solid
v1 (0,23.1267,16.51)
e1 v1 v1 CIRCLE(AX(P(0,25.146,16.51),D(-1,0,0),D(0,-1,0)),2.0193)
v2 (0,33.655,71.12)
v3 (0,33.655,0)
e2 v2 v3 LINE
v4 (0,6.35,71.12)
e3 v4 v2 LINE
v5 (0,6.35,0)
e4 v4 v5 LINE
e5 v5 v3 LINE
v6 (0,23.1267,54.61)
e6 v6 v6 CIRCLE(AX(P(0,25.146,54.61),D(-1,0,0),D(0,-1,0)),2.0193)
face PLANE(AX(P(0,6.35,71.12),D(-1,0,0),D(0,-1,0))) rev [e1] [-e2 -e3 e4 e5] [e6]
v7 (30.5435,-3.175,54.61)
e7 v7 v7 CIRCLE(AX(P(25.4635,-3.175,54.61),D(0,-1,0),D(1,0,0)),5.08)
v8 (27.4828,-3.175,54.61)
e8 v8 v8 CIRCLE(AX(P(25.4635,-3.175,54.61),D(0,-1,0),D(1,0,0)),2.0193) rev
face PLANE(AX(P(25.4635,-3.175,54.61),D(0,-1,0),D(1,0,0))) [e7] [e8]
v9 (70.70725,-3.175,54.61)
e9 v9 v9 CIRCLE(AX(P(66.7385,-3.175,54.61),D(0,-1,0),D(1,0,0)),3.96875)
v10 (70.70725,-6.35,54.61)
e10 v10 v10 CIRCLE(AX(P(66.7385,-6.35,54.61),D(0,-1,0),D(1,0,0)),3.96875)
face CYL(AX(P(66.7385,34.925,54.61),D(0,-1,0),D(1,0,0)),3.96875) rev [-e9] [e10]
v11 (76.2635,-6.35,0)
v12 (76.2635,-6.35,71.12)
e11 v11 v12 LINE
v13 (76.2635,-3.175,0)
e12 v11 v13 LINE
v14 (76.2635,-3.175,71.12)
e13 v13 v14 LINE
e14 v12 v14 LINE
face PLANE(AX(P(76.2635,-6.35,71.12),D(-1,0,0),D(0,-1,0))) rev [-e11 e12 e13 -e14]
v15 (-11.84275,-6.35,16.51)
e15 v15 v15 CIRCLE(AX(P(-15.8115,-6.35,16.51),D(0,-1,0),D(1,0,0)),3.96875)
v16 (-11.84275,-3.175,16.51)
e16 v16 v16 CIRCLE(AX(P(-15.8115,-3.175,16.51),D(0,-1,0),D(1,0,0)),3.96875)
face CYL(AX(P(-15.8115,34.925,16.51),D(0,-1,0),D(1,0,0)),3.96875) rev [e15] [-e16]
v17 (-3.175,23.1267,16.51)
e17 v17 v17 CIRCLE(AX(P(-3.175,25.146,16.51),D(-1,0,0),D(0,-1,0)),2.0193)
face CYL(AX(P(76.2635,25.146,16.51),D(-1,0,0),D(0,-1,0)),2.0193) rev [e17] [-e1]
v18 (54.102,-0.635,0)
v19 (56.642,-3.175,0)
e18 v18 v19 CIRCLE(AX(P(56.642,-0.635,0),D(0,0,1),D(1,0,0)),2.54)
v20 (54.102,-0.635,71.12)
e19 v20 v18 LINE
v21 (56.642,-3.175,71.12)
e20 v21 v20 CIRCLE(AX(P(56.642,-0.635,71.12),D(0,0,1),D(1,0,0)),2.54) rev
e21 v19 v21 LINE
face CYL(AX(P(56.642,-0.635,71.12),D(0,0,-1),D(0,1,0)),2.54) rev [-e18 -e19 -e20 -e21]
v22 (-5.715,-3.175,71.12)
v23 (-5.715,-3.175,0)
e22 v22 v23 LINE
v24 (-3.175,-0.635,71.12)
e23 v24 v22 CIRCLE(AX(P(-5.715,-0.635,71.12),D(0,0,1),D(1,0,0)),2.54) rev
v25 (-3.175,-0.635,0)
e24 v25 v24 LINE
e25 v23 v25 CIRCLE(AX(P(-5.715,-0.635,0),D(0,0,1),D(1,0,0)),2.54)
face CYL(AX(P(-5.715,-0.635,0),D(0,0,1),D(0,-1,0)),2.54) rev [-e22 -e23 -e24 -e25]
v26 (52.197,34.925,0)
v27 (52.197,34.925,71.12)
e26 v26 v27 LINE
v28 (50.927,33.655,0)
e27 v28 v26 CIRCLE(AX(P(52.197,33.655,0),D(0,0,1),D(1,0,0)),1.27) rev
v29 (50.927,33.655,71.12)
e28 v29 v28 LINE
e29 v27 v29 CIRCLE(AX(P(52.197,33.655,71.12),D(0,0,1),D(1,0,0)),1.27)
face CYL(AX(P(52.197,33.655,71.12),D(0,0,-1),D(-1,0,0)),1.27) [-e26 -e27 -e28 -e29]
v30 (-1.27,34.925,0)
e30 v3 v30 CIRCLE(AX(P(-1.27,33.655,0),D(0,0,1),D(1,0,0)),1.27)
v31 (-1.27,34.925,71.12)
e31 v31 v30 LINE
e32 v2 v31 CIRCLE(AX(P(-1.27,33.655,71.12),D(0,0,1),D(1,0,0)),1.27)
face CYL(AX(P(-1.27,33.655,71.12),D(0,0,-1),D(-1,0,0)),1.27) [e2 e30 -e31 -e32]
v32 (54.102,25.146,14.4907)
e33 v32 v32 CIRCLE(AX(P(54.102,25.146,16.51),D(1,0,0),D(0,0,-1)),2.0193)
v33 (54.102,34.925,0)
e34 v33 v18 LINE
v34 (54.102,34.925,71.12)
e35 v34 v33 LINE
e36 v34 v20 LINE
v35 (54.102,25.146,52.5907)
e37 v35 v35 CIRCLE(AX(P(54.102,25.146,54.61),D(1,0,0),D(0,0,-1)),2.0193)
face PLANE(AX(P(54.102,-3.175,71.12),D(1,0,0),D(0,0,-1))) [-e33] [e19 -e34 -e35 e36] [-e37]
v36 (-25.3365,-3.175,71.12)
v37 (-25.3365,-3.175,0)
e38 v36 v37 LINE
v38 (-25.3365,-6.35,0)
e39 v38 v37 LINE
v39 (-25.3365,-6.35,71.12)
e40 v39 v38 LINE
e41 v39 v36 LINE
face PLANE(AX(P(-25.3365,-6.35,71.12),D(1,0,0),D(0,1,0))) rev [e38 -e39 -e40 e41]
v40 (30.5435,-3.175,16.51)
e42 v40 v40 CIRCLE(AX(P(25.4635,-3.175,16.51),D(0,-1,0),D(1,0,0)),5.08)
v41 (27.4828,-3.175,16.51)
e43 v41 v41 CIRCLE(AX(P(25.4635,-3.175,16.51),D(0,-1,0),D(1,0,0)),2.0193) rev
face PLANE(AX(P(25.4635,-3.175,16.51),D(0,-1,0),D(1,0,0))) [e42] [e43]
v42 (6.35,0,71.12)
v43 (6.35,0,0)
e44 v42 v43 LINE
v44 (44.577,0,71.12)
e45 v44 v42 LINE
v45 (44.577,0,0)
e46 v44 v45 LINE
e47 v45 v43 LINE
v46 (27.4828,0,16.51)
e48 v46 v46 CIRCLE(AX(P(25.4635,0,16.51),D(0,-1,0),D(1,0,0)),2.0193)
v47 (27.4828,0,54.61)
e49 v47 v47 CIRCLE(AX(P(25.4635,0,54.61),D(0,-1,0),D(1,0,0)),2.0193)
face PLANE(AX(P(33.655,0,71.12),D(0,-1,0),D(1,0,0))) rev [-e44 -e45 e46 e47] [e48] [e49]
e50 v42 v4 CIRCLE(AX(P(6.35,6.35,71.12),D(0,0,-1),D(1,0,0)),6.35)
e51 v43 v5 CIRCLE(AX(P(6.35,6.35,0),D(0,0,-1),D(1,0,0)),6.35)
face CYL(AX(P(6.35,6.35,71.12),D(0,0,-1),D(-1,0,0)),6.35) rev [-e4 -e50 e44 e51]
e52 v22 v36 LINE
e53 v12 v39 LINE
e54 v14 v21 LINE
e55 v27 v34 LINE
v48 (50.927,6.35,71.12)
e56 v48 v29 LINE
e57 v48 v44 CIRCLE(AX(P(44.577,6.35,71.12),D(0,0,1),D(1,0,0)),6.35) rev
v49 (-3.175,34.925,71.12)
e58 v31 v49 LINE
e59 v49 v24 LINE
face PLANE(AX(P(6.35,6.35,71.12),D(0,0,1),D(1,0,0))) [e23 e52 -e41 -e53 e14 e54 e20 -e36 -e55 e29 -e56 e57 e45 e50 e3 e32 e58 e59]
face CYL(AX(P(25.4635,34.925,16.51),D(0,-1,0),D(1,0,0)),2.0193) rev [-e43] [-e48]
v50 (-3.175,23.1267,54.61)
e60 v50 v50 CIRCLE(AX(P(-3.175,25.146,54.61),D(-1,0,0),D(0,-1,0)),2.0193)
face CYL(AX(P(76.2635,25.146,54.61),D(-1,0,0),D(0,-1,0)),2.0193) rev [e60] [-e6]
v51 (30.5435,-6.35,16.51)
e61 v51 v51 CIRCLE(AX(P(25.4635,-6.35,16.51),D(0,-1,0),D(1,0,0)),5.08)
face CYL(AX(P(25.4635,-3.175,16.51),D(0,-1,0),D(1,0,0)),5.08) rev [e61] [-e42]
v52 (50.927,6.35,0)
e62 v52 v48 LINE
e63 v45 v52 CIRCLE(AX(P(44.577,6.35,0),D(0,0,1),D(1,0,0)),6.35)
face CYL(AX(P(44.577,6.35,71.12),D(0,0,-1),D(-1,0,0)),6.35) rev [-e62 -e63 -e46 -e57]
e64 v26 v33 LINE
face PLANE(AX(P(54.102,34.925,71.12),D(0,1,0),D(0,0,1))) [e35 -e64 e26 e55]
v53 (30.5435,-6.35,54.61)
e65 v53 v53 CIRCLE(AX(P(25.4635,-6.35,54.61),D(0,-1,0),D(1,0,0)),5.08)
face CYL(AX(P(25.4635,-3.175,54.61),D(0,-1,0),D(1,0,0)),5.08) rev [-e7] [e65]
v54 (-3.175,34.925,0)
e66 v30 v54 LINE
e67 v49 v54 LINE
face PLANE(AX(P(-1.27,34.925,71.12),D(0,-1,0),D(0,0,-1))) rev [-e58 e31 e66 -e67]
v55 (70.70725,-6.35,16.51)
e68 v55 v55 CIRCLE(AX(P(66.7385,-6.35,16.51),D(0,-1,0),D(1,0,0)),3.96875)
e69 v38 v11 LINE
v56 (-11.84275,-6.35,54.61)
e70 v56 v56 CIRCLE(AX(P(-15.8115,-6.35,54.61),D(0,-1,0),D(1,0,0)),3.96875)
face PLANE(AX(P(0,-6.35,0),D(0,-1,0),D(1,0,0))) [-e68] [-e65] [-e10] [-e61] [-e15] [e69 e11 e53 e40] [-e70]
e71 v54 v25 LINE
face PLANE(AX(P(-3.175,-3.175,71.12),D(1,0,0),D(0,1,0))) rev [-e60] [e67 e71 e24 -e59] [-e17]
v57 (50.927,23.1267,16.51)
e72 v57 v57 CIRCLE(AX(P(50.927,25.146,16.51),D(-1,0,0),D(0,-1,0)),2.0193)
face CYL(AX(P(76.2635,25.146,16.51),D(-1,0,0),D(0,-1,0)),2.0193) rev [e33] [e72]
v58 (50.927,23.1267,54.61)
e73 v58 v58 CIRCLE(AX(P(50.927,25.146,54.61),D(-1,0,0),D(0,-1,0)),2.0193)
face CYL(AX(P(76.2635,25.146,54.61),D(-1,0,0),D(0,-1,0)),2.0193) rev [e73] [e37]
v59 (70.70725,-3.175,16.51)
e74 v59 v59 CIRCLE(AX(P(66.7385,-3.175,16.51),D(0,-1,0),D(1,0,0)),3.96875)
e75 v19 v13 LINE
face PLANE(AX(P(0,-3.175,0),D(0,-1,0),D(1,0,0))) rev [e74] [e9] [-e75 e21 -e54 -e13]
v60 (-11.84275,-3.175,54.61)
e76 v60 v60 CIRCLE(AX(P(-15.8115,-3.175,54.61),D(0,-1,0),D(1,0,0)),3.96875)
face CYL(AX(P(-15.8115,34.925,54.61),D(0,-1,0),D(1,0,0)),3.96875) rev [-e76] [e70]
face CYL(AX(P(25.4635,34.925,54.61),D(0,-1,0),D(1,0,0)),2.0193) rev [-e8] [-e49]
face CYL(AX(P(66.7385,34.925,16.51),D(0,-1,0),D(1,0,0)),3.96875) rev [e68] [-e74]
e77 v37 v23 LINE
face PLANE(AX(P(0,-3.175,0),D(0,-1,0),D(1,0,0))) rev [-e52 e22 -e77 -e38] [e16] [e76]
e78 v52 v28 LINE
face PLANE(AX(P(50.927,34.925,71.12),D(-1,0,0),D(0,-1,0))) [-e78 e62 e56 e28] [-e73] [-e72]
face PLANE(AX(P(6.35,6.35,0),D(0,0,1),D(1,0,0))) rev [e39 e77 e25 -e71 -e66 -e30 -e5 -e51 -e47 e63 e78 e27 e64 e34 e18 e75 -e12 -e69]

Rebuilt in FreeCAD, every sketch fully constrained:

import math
import FreeCAD as App
import Part
import Sketcher
from FreeCAD import Vector
Q = App.Units.Quantity


def edges_at(feature, points):
    """Names of the edges that pass closest to the given points."""
    edges = feature.Shape.Edges
    near = lambda p: min(range(len(edges)), key=lambda i: edges[i].distToShape(Part.Vertex(*p))[0])
    return sorted({f"Edge{near(p) + 1}" for p in points})

doc = App.newDocument("Part")
params = doc.addObject("Spreadsheet::Sheet", "Params")
for row, (alias, value) in enumerate([
    ("sketch1_radius", "0.05 in"),
    ("sketch1_radius2", "0.25 in"),
    ("sketch1_width", "1.5 in"),
    ("sketch1_width2", "0.075 in"),
    ("pad1_length", "2.8 in"),
    ("sketch2_height", "0.125 in"),
    ("sketch3_height", "1.5 in"),
    ("sketch3_width", "0.125 in"),
    ("pad2_length", "2.8 in"),
    ("fillet_radius", "0.25 in"),
    ("fillet2_radius", "0.05 in"),
    ("sketch4_width", "4 in"),
    ("sketch4_height", "2.8 in"),
    ("pad3_length", "0.125 in"),
    ("sketch5_diameter", "0.159 in"),
    ("sketch6_diameter", "0.159 in"),
    ("sketch7_diameter", "0.3125 in"),
    ("fillet3_radius", "0.1 in"),
    ("sketch8_diameter", "0.4 in"),
    ("pocket5_length", "0.125 in"),
], start=1):
    params.set(f"A{row}", alias)
    params.set(f"B{row}", "=" + value)
    params.setAlias(f"B{row}", alias)

body = doc.addObject("PartDesign::Body", "Body")

sketch1 = body.newObject("Sketcher::SketchObject", "Sketch")
sketch1.AttachmentSupport = (doc.getObject("XY_Plane"), [""])
sketch1.MapMode = "FlatFace"
sketch1.addGeometry([
    Part.LineSegment(Vector(0, 6.3, 0), Vector(0, 33.7, 0)),
    Part.ArcOfCircle(Part.Circle(Vector(-1.3, 33.7, 0), Vector(0, 0, 1), 1.3), math.radians(0), math.radians(90)),
    Part.LineSegment(Vector(-1.3, 34.9, 0), Vector(-3.2, 34.9, 0)),
    Part.LineSegment(Vector(-3.2, 34.9, 0), Vector(-3.2, -3.2, 0)),
    Part.LineSegment(Vector(-3.2, -3.2, 0), Vector(34.9, -3.2, 0)),
    Part.LineSegment(Vector(34.9, -3.2, 0), Vector(34.9, -1.3, 0)),
    Part.ArcOfCircle(Part.Circle(Vector(33.7, -1.3, 0), Vector(0, 0, 1), 1.3), math.radians(0), math.radians(90)),
    Part.LineSegment(Vector(33.7, 0, 0), Vector(6.3, 0, 0)),
    Part.ArcOfCircle(Part.Circle(Vector(6.3, 6.3, 0), Vector(0, 0, 1), 6.3), math.radians(180), math.radians(270)),
], False)
sketch1.addConstraint([
    Sketcher.Constraint("Tangent", 0, 2, 1, 1),
    Sketcher.Constraint("Tangent", 1, 2, 2, 1),
    Sketcher.Constraint("Coincident", 2, 2, 3, 1),
    Sketcher.Constraint("Coincident", 3, 2, 4, 1),
    Sketcher.Constraint("Coincident", 4, 2, 5, 1),
    Sketcher.Constraint("Tangent", 5, 2, 6, 1),
    Sketcher.Constraint("Tangent", 6, 2, 7, 1),
    Sketcher.Constraint("Tangent", 7, 2, 8, 2),
    Sketcher.Constraint("Tangent", 8, 1, 0, 1),
    Sketcher.Constraint("Vertical", 0),
    Sketcher.Constraint("Horizontal", 2),
    Sketcher.Constraint("Vertical", 3),
    Sketcher.Constraint("Horizontal", 4),
    Sketcher.Constraint("Vertical", 5),
    Sketcher.Constraint("Horizontal", 7),
    Sketcher.Constraint("Equal", 1, 6),
    Sketcher.Constraint("PointOnObject", 0, 2, -2),
    Sketcher.Constraint("PointOnObject", 6, 2, -1),
    Sketcher.Constraint("Equal", 7, 0),
    Sketcher.Constraint("Equal", 4, 3),
    Sketcher.Constraint("Radius", 1, Q("0.05 in")),
    Sketcher.Constraint("Radius", 8, Q("0.25 in")),
    Sketcher.Constraint("DistanceX", 4, 1, 4, 2, Q("1.5 in")),
    Sketcher.Constraint("DistanceX", 2, 2, 2, 1, Q("0.075 in")),
])
sketch1.setExpression("Constraints[20]", "Params.sketch1_radius")
sketch1.setExpression("Constraints[21]", "Params.sketch1_radius2")
sketch1.setExpression("Constraints[22]", "Params.sketch1_width")
sketch1.setExpression("Constraints[23]", "Params.sketch1_width2")
pad1 = body.newObject("PartDesign::Pad", "Pad")
pad1.Profile = sketch1
pad1.setExpression("Length", "Params.pad1_length")

sketch2 = body.newObject("Sketcher::SketchObject", "Sketch001")
sketch2.AttachmentSupport = (doc.getObject("XY_Plane"), [""])
sketch2.MapMode = "FlatFace"
sketch2.addGeometry([
    Part.LineSegment(Vector(34.9, 0, 0), Vector(34.9, -3.2, 0)),
    Part.LineSegment(Vector(34.9, -3.2, 0), Vector(25.5, -3.2, 0)),
    Part.LineSegment(Vector(25.5, -3.2, 0), Vector(25.5, 0, 0)),
    Part.LineSegment(Vector(25.5, 0, 0), Vector(34.9, 0, 0)),
], False)
sketch2.addConstraint([
    Sketcher.Constraint("Coincident", 0, 2, 1, 1),
    Sketcher.Constraint("Coincident", 1, 2, 2, 1),
    Sketcher.Constraint("Coincident", 2, 2, 3, 1),
    Sketcher.Constraint("Coincident", 3, 2, 0, 1),
    Sketcher.Constraint("Vertical", 0),
    Sketcher.Constraint("Horizontal", 1),
    Sketcher.Constraint("Vertical", 2),
    Sketcher.Constraint("Horizontal", 3),
    Sketcher.Constraint("PointOnObject", 2, 2, -1),
    Sketcher.Constraint("DistanceY", 0, 2, 0, 1, Q("0.125 in")),
    Sketcher.Constraint("DistanceX", 1, 2, 1, 1, Q("0.3725 in")),
    Sketcher.Constraint("DistanceX", -1, 1, 0, 2, Q("1.375 in")),
])
sketch2.setExpression("Constraints[9]", "Params.sketch2_height")
pocket1 = body.newObject("PartDesign::Pocket", "Pocket")
pocket1.Profile = sketch2
pocket1.Type = "ThroughAll"
pocket1.Reversed = True

sketch3 = body.newObject("Sketcher::SketchObject", "Sketch002")
sketch3.AttachmentSupport = (doc.getObject("XY_Plane"), [""])
sketch3.MapMode = "FlatFace"
sketch3.addGeometry([
    Part.LineSegment(Vector(54.1, -3.2, 0), Vector(25.5, -3.2, 0)),
    Part.LineSegment(Vector(25.5, -3.2, 0), Vector(25.5, 0, 0)),
    Part.LineSegment(Vector(25.5, 0, 0), Vector(50.9, 0, 0)),
    Part.LineSegment(Vector(50.9, 0, 0), Vector(50.9, 34.9, 0)),
    Part.LineSegment(Vector(50.9, 34.9, 0), Vector(54.1, 34.9, 0)),
    Part.LineSegment(Vector(54.1, 34.9, 0), Vector(54.1, -3.2, 0)),
], False)
sketch3.addConstraint([
    Sketcher.Constraint("Coincident", 0, 2, 1, 1),
    Sketcher.Constraint("Coincident", 1, 2, 2, 1),
    Sketcher.Constraint("Coincident", 2, 2, 3, 1),
    Sketcher.Constraint("Coincident", 3, 2, 4, 1),
    Sketcher.Constraint("Coincident", 4, 2, 5, 1),
    Sketcher.Constraint("Coincident", 5, 2, 0, 1),
    Sketcher.Constraint("Horizontal", 0),
    Sketcher.Constraint("Vertical", 1),
    Sketcher.Constraint("Horizontal", 2),
    Sketcher.Constraint("Vertical", 3),
    Sketcher.Constraint("Horizontal", 4),
    Sketcher.Constraint("Vertical", 5),
    Sketcher.Constraint("PointOnObject", 1, 2, -1),
    Sketcher.Constraint("Equal", 4, 1),
    Sketcher.Constraint("DistanceY", 5, 2, 5, 1, Q("1.5 in")),
    Sketcher.Constraint("DistanceX", 4, 1, 4, 2, Q("0.125 in")),
    Sketcher.Constraint("DistanceX", -1, 1, 4, 2, Q("2.13 in")),
    Sketcher.Constraint("DistanceX", 0, 2, 0, 1, Q("1.1275 in")),
])
sketch3.setExpression("Constraints[14]", "Params.sketch3_height")
sketch3.setExpression("Constraints[15]", "Params.sketch3_width")
pad2 = body.newObject("PartDesign::Pad", "Pad001")
pad2.Profile = sketch3
pad2.setExpression("Length", "Params.pad2_length")
doc.recompute()

fillet = body.newObject("PartDesign::Fillet", "Fillet")
fillet.Base = (pad2, edges_at(pad2, [(50.927, 0, 35.56)]))
fillet.setExpression("Radius", "Params.fillet_radius")
doc.recompute()

fillet2 = body.newObject("PartDesign::Fillet", "Fillet001")
fillet2.Base = (fillet, edges_at(fillet, [(50.927, 34.925, 35.56)]))
fillet2.setExpression("Radius", "Params.fillet2_radius")

sketch4 = body.newObject("Sketcher::SketchObject", "Sketch003")
sketch4.AttachmentSupport = (doc.getObject("XZ_Plane"), [""])
sketch4.MapMode = "FlatFace"
sketch4.AttachmentOffset = App.Placement(Vector(0, 0, 0.125 * 25.4), App.Rotation())
sketch4.addGeometry([
    Part.LineSegment(Vector(-25, 71, 0), Vector(-25, 0, 0)),
    Part.LineSegment(Vector(-25, 0, 0), Vector(76, 0, 0)),
    Part.LineSegment(Vector(76, 0, 0), Vector(76, 71, 0)),
    Part.LineSegment(Vector(76, 71, 0), Vector(-25, 71, 0)),
], False)
sketch4.addConstraint([
    Sketcher.Constraint("Coincident", 0, 2, 1, 1),
    Sketcher.Constraint("Coincident", 1, 2, 2, 1),
    Sketcher.Constraint("Coincident", 2, 2, 3, 1),
    Sketcher.Constraint("Coincident", 3, 2, 0, 1),
    Sketcher.Constraint("Vertical", 0),
    Sketcher.Constraint("Horizontal", 1),
    Sketcher.Constraint("Vertical", 2),
    Sketcher.Constraint("Horizontal", 3),
    Sketcher.Constraint("PointOnObject", 0, 2, -1),
    Sketcher.Constraint("DistanceX", 1, 1, 1, 2, Q("4 in")),
    Sketcher.Constraint("DistanceY", 0, 2, 0, 1, Q("2.8 in")),
    Sketcher.Constraint("DistanceX", 0, 2, -1, 1, Q("0.9975 in")),
])
sketch4.setExpression("Constraints[9]", "Params.sketch4_width")
sketch4.setExpression("Constraints[10]", "Params.sketch4_height")
pad3 = body.newObject("PartDesign::Pad", "Pad002")
pad3.Profile = sketch4
pad3.setExpression("Length", "Params.pad3_length")

sketch5 = body.newObject("Sketcher::SketchObject", "Sketch004")
sketch5.AttachmentSupport = (doc.getObject("YZ_Plane"), [""])
sketch5.MapMode = "FlatFace"
sketch5.AttachmentOffset = App.Placement(Vector(0, 0, -0.125 * 25.4), App.Rotation())
sketch5.addGeometry([
    Part.Circle(Vector(25.1, 16.5, 0), Vector(0, 0, 1), 2),
    Part.Circle(Vector(25.1, 54.6, 0), Vector(0, 0, 1), 2),
], False)
sketch5.addConstraint([
    Sketcher.Constraint("Equal", 0, 1),
    Sketcher.Constraint("Vertical", 0, 3, 1, 3),
    Sketcher.Constraint("Diameter", 0, Q("0.159 in")),
    Sketcher.Constraint("DistanceY", 0, 3, 1, 3, Q("1.5 in")),
    Sketcher.Constraint("DistanceX", -1, 1, 0, 3, Q("0.99 in")),
    Sketcher.Constraint("DistanceY", -1, 1, 0, 3, Q("0.65 in")),
])
sketch5.setExpression("Constraints[2]", "Params.sketch5_diameter")
pocket2 = body.newObject("PartDesign::Pocket", "Pocket001")
pocket2.Profile = sketch5
pocket2.Type = "ThroughAll"
pocket2.Reversed = True

sketch6 = body.newObject("Sketcher::SketchObject", "Sketch005")
sketch6.AttachmentSupport = (doc.getObject("XZ_Plane"), [""])
sketch6.MapMode = "FlatFace"
sketch6.AttachmentOffset = App.Placement(Vector(0, 0, 0.25 * 25.4), App.Rotation())
sketch6.addGeometry([
    Part.Circle(Vector(25.5, 16.5, 0), Vector(0, 0, 1), 2),
    Part.Circle(Vector(25.5, 54.6, 0), Vector(0, 0, 1), 2),
], False)
sketch6.addConstraint([
    Sketcher.Constraint("Equal", 0, 1),
    Sketcher.Constraint("Vertical", 0, 3, 1, 3),
    Sketcher.Constraint("Diameter", 0, Q("0.159 in")),
    Sketcher.Constraint("DistanceY", 0, 3, 1, 3, Q("1.5 in")),
    Sketcher.Constraint("DistanceY", -1, 1, 0, 3, Q("0.65 in")),
    Sketcher.Constraint("DistanceX", -1, 1, 0, 3, Q("1.0025 in")),
])
sketch6.setExpression("Constraints[2]", "Params.sketch6_diameter")
pocket3 = body.newObject("PartDesign::Pocket", "Pocket002")
pocket3.Profile = sketch6
pocket3.Type = "ThroughAll"

sketch7 = body.newObject("Sketcher::SketchObject", "Sketch006")
sketch7.AttachmentSupport = (doc.getObject("XZ_Plane"), [""])
sketch7.MapMode = "FlatFace"
sketch7.AttachmentOffset = App.Placement(Vector(0, 0, 0.25 * 25.4), App.Rotation())
sketch7.addGeometry([
    Part.Circle(Vector(-15.8, 16.5, 0), Vector(0, 0, 1), 4),
    Part.Circle(Vector(-15.8, 54.6, 0), Vector(0, 0, 1), 4),
    Part.Circle(Vector(66.7, 54.6, 0), Vector(0, 0, 1), 4),
    Part.Circle(Vector(66.7, 16.5, 0), Vector(0, 0, 1), 4),
], False)
sketch7.addConstraint([
    Sketcher.Constraint("Equal", 0, 1),
    Sketcher.Constraint("Equal", 1, 2),
    Sketcher.Constraint("Equal", 2, 3),
    Sketcher.Constraint("Horizontal", 1, 3, 2, 3),
    Sketcher.Constraint("Horizontal", 0, 3, 3, 3),
    Sketcher.Constraint("Vertical", 0, 3, 1, 3),
    Sketcher.Constraint("Vertical", 2, 3, 3, 3),
    Sketcher.Constraint("Diameter", 0, Q("0.3125 in")),
    Sketcher.Constraint("DistanceY", 0, 3, 1, 3, Q("1.5 in")),
    Sketcher.Constraint("DistanceY", -1, 1, 0, 3, Q("0.65 in")),
    Sketcher.Constraint("DistanceX", 1, 3, 2, 3, Q("3.25 in")),
    Sketcher.Constraint("DistanceX", 0, 3, -1, 1, Q("0.6225 in")),
])
sketch7.setExpression("Constraints[7]", "Params.sketch7_diameter")
pocket4 = body.newObject("PartDesign::Pocket", "Pocket003")
pocket4.Profile = sketch7
pocket4.Type = "ThroughAll"
doc.recompute()

fillet3 = body.newObject("PartDesign::Fillet", "Fillet002")
fillet3.Base = (pocket4, edges_at(pocket4, [(-3.175, -3.175, 35.56), (54.102, -3.175, 35.56)]))
fillet3.setExpression("Radius", "Params.fillet3_radius")

sketch8 = body.newObject("Sketcher::SketchObject", "Sketch007")
sketch8.AttachmentSupport = (doc.getObject("XZ_Plane"), [""])
sketch8.MapMode = "FlatFace"
sketch8.AttachmentOffset = App.Placement(Vector(0, 0, 0.25 * 25.4), App.Rotation())
sketch8.addGeometry([
    Part.Circle(Vector(25, 55, 0), Vector(0, 0, 1), 5),
    Part.Circle(Vector(25, 17, 0), Vector(0, 0, 1), 5),
], False)
sketch8.addConstraint([
    Sketcher.Constraint("Equal", 0, 1),
    Sketcher.Constraint("Vertical", 0, 3, 1, 3),
    Sketcher.Constraint("Diameter", 0, Q("0.4 in")),
    Sketcher.Constraint("DistanceY", 1, 3, 0, 3, Q("1.5 in")),
    Sketcher.Constraint("DistanceY", -1, 1, 0, 3, Q("2.15 in")),
    Sketcher.Constraint("DistanceX", -1, 1, 0, 3, Q("1.0025 in")),
])
sketch8.setExpression("Constraints[2]", "Params.sketch8_diameter")
pocket5 = body.newObject("PartDesign::Pocket", "Pocket004")
pocket5.Profile = sketch8
pocket5.setExpression("Length", "Params.pocket5_length")

doc.recompute()
